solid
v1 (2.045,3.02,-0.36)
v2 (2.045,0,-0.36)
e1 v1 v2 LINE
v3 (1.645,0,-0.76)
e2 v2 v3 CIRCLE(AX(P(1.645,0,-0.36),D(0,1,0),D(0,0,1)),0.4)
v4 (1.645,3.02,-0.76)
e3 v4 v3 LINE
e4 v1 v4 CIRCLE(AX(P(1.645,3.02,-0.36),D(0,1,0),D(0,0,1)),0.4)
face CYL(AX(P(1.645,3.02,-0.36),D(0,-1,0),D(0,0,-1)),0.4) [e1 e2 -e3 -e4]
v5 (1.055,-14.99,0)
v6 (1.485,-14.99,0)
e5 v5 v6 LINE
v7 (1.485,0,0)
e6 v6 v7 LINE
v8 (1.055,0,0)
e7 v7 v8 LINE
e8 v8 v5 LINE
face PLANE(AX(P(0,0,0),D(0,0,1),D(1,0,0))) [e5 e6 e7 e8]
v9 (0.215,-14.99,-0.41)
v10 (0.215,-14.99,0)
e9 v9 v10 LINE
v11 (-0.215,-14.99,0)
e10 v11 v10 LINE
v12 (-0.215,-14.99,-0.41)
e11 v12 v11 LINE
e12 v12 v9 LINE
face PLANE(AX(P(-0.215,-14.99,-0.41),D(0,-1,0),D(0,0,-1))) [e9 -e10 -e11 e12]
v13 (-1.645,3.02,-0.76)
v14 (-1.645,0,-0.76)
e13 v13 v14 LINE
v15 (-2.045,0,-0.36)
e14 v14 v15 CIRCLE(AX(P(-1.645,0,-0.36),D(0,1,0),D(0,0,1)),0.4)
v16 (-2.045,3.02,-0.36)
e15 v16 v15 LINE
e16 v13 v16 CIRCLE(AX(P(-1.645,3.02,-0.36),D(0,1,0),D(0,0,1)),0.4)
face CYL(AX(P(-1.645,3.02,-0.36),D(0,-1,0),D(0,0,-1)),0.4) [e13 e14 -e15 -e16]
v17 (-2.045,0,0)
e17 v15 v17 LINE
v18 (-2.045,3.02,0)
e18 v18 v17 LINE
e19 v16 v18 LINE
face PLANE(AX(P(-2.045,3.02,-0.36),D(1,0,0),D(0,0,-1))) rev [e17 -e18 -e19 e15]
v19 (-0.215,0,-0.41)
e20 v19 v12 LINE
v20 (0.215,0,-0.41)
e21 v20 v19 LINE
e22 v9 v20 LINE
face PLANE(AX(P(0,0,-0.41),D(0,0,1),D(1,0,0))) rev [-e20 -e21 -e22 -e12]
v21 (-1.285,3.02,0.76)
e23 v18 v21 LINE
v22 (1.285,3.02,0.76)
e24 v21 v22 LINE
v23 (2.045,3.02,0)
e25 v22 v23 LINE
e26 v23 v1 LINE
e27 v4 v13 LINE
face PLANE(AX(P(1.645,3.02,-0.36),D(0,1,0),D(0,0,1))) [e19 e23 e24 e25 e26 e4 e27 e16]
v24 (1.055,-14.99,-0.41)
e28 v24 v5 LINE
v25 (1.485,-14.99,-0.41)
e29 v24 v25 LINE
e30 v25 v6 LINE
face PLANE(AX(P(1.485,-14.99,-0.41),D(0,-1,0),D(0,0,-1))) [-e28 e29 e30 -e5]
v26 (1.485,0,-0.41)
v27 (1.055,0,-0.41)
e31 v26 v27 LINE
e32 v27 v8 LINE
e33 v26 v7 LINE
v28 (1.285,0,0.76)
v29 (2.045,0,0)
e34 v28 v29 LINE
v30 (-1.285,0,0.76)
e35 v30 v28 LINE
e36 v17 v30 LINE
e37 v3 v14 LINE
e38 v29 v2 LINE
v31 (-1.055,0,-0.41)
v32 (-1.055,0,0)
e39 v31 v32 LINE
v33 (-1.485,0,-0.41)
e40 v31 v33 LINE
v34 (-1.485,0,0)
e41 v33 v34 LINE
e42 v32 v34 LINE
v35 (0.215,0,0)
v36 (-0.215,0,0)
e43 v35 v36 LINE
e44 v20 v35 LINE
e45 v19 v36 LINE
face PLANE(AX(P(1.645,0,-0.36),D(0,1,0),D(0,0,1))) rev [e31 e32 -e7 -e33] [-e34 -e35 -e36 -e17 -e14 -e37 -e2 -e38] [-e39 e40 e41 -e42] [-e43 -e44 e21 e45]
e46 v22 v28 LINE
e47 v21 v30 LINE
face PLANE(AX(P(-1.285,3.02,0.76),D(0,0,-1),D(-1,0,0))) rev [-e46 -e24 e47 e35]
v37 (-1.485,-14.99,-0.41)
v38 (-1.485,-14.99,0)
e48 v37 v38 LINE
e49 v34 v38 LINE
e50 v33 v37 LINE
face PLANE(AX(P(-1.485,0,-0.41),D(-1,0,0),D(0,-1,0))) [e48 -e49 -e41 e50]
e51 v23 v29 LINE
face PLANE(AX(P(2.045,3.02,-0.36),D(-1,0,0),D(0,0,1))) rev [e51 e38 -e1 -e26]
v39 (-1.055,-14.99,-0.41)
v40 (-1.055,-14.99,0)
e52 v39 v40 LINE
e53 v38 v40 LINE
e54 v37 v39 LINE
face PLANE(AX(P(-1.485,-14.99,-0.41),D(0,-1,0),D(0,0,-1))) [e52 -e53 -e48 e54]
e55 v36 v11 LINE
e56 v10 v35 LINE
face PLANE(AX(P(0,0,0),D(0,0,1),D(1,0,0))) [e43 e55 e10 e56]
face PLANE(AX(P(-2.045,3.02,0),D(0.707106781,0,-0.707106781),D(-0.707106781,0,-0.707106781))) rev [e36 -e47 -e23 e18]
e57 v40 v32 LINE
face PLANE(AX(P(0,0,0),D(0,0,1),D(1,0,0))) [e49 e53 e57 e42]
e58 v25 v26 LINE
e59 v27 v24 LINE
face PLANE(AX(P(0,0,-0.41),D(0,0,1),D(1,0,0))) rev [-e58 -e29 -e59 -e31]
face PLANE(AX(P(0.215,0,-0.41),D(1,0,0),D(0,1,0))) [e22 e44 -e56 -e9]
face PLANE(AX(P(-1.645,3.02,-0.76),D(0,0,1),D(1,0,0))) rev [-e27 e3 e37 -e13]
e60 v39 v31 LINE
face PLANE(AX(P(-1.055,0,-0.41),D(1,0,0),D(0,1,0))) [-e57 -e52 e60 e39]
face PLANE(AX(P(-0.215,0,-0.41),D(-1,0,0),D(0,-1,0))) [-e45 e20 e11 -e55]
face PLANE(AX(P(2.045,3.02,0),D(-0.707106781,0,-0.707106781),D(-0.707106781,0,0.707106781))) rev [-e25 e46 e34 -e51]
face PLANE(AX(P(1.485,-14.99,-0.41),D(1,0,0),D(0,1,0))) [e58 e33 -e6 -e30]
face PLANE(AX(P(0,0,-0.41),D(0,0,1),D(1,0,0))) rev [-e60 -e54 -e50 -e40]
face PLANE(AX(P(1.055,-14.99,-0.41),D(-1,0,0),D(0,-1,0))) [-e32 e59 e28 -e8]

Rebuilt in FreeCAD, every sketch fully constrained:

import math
import FreeCAD as App
import Part
import Sketcher
Q = App.Units.Quantity

doc = App.newDocument("Part")
body = doc.addObject("PartDesign::Body", "Body")

# Sketch on XZ plane
sketch1 = body.newObject("Sketcher::SketchObject", "Sketch")
sketch1.AttachmentSupport = (doc.getObject("XZ_Plane"), [""])
sketch1.MapMode = "FlatFace"
sketch1.addGeometry(Part.LineSegment(App.Vector(1.65, -0.76, 0), App.Vector(-1.65, -0.76, 0)), False)
sketch1.addGeometry(Part.ArcOfCircle(Part.Circle(App.Vector(-1.64, -0.36, 0), App.Vector(0, 0, 1), 0.4), math.radians(-180), math.radians(-90)), False)
sketch1.addGeometry(Part.LineSegment(App.Vector(-2.04, -0.36, 0), App.Vector(-2.04, 0, 0)), False)
sketch1.addGeometry(Part.LineSegment(App.Vector(-2.04, 0, 0), App.Vector(-1.28, 0.76, 0)), False)
sketch1.addGeometry(Part.LineSegment(App.Vector(-1.28, 0.76, 0), App.Vector(1.28, 0.76, 0)), False)
sketch1.addGeometry(Part.LineSegment(App.Vector(1.28, 0.76, 0), App.Vector(2.04, 0, 0)), False)
sketch1.addGeometry(Part.LineSegment(App.Vector(2.04, 0, 0), App.Vector(2.04, -0.36, 0)), False)
sketch1.addGeometry(Part.ArcOfCircle(Part.Circle(App.Vector(1.64, -0.36, 0), App.Vector(0, 0, 1), 0.4), math.radians(-90), math.radians(0)), False)
sketch1.addConstraint(Sketcher.Constraint("Tangent", 0, 2, 1, 2))
sketch1.addConstraint(Sketcher.Constraint("Tangent", 1, 1, 2, 1))
sketch1.addConstraint(Sketcher.Constraint("Coincident", 2, 2, 3, 1))
sketch1.addConstraint(Sketcher.Constraint("Coincident", 3, 2, 4, 1))
sketch1.addConstraint(Sketcher.Constraint("Coincident", 4, 2, 5, 1))
sketch1.addConstraint(Sketcher.Constraint("Coincident", 5, 2, 6, 1))
sketch1.addConstraint(Sketcher.Constraint("Tangent", 6, 2, 7, 2))
sketch1.addConstraint(Sketcher.Constraint("Tangent", 7, 1, 0, 1))
sketch1.addConstraint(Sketcher.Constraint("Horizontal", 0))
sketch1.addConstraint(Sketcher.Constraint("Vertical", 2))
sketch1.addConstraint(Sketcher.Constraint("Horizontal", 4))
sketch1.addConstraint(Sketcher.Constraint("Vertical", 6))
sketch1.addConstraint(Sketcher.Constraint("Equal", 1, 7))
sketch1.addConstraint(Sketcher.Constraint("Symmetric", 2, 2, 5, 2, -1, 1))
sketch1.addConstraint(Sketcher.Constraint("PointOnObject", 2, 2, -1))
sketch1.addConstraint(Sketcher.Constraint("Perpendicular", 3, 5))
sketch1.addConstraint(Sketcher.Constraint("Equal", 3, 5))
sketch1.addConstraint(Sketcher.Constraint("Radius", 1, Q("0.4 mm")))
sketch1.addConstraint(Sketcher.Constraint("DistanceX", 0, 2, 0, 1, Q("3.29 mm")))
sketch1.addConstraint(Sketcher.Constraint("DistanceX", 4, 1, 4, 2, Q("2.57 mm")))
sketch1.addConstraint(Sketcher.Constraint("DistanceY", 2, 1, 2, 2, Q("0.36 mm")))
pad1 = body.newObject("PartDesign::Pad", "Pad")
pad1.Profile = sketch1
pad1.Length = 3.02
pad1.Reversed = True

# Sketch on XY plane
sketch2 = body.newObject("Sketcher::SketchObject", "Sketch001")
sketch2.AttachmentSupport = (doc.getObject("XY_Plane"), [""])
sketch2.MapMode = "FlatFace"
sketch2.addGeometry(Part.LineSegment(App.Vector(-0.21, 0, 0), App.Vector(-0.21, -14.99, 0)), False)
sketch2.addGeometry(Part.LineSegment(App.Vector(-0.21, -14.99, 0), App.Vector(0.21, -14.99, 0)), False)
sketch2.addGeometry(Part.LineSegment(App.Vector(0.21, -14.99, 0), App.Vector(0.21, 0, 0)), False)
sketch2.addGeometry(Part.LineSegment(App.Vector(0.21, 0, 0), App.Vector(-0.21, 0, 0)), False)
sketch2.addGeometry(Part.LineSegment(App.Vector(1.05, 0, 0), App.Vector(1.05, -14.99, 0)), False)
sketch2.addGeometry(Part.LineSegment(App.Vector(1.05, -14.99, 0), App.Vector(1.49, -14.99, 0)), False)
sketch2.addGeometry(Part.LineSegment(App.Vector(1.49, -14.99, 0), App.Vector(1.49, 0, 0)), False)
sketch2.addGeometry(Part.LineSegment(App.Vector(1.49, 0, 0), App.Vector(1.05, 0, 0)), False)
sketch2.addGeometry(Part.LineSegment(App.Vector(-1.49, 0, 0), App.Vector(-1.49, -14.99, 0)), False)
sketch2.addGeometry(Part.LineSegment(App.Vector(-1.49, -14.99, 0), App.Vector(-1.05, -14.99, 0)), False)
sketch2.addGeometry(Part.LineSegment(App.Vector(-1.05, -14.99, 0), App.Vector(-1.05, 0, 0)), False)
sketch2.addGeometry(Part.LineSegment(App.Vector(-1.05, 0, 0), App.Vector(-1.49, 0, 0)), False)
sketch2.addConstraint(Sketcher.Constraint("Coincident", 0, 2, 1, 1))
sketch2.addConstraint(Sketcher.Constraint("Coincident", 1, 2, 2, 1))
sketch2.addConstraint(Sketcher.Constraint("Coincident", 2, 2, 3, 1))
sketch2.addConstraint(Sketcher.Constraint("Coincident", 3, 2, 0, 1))
sketch2.addConstraint(Sketcher.Constraint("Coincident", 4, 2, 5, 1))
sketch2.addConstraint(Sketcher.Constraint("Coincident", 5, 2, 6, 1))
sketch2.addConstraint(Sketcher.Constraint("Coincident", 6, 2, 7, 1))
sketch2.addConstraint(Sketcher.Constraint("Coincident", 7, 2, 4, 1))
sketch2.addConstraint(Sketcher.Constraint("Coincident", 8, 2, 9, 1))
sketch2.addConstraint(Sketcher.Constraint("Coincident", 9, 2, 10, 1))
sketch2.addConstraint(Sketcher.Constraint("Coincident", 10, 2, 11, 1))
sketch2.addConstraint(Sketcher.Constraint("Coincident", 11, 2, 8, 1))
sketch2.addConstraint(Sketcher.Constraint("Vertical", 0))
sketch2.addConstraint(Sketcher.Constraint("Horizontal", 1))
sketch2.addConstraint(Sketcher.Constraint("Vertical", 2))
sketch2.addConstraint(Sketcher.Constraint("Horizontal", 3))
sketch2.addConstraint(Sketcher.Constraint("Vertical", 4))
sketch2.addConstraint(Sketcher.Constraint("Horizontal", 5))
sketch2.addConstraint(Sketcher.Constraint("Vertical", 6))
sketch2.addConstraint(Sketcher.Constraint("Horizontal", 7))
sketch2.addConstraint(Sketcher.Constraint("Vertical", 8))
sketch2.addConstraint(Sketcher.Constraint("Horizontal", 9))
sketch2.addConstraint(Sketcher.Constraint("Vertical", 10))
sketch2.addConstraint(Sketcher.Constraint("Horizontal", 11))
sketch2.addConstraint(Sketcher.Constraint("Symmetric", 2, 2, 3, 2, -1, 1))
sketch2.addConstraint(Sketcher.Constraint("Symmetric", 7, 2, 10, 2, -1, 1))
sketch2.addConstraint(Sketcher.Constraint("Symmetric", 5, 2, 8, 2, -2))
sketch2.addConstraint(Sketcher.Constraint("PointOnObject", 6, 2, -1))
sketch2.addConstraint(Sketcher.Constraint("Horizontal", 1, 2, 4, 2))
sketch2.addConstraint(Sketcher.Constraint("Equal", 3, 5))
sketch2.addConstraint(Sketcher.Constraint("DistanceX", 1, 1, 1, 2, Q("0.43 mm")))
sketch2.addConstraint(Sketcher.Constraint("DistanceY", 0, 2, 0, 1, Q("14.99 mm")))
sketch2.addConstraint(Sketcher.Constraint("DistanceX", 0, 2, 5, 2, Q("1.7 mm")))
pad2 = body.newObject("PartDesign::Pad", "Pad001")
pad2.Profile = sketch2
pad2.Length = 0.41
pad2.Reversed = True

doc.recompute()
